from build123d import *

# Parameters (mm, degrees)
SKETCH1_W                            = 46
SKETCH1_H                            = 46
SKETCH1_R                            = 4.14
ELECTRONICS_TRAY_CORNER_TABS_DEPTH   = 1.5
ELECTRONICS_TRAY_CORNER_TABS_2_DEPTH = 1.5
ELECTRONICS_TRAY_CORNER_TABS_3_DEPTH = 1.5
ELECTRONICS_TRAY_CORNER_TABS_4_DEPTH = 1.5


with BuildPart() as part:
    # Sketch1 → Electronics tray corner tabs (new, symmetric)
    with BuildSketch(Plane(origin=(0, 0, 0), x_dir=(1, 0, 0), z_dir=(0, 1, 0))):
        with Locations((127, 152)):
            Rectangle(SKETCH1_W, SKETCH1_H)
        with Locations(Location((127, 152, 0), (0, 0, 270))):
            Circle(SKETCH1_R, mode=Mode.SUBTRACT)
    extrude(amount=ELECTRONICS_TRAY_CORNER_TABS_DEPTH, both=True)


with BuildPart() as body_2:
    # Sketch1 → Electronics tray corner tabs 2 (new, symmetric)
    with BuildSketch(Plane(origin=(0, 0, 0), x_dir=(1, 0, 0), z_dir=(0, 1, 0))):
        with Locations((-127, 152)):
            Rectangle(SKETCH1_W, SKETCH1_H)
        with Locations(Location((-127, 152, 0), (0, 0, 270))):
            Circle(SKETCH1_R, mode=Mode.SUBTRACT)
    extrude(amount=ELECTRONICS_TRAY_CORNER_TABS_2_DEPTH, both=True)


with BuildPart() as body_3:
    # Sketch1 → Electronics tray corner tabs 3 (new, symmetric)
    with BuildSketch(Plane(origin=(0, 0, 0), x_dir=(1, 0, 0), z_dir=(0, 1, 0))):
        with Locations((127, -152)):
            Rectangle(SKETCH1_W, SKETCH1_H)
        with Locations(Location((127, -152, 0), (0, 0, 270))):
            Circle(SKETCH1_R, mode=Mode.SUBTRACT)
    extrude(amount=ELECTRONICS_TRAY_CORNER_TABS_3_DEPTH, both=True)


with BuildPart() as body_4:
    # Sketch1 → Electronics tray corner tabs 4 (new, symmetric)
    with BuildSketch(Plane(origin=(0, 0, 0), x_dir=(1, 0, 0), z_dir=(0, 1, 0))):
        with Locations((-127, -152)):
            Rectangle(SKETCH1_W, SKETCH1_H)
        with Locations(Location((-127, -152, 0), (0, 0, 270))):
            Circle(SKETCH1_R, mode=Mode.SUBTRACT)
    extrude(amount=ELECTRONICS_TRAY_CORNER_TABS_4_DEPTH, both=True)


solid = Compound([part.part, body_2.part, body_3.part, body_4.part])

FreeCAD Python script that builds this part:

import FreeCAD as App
import Part
import Sketcher

V = App.Vector

doc = App.newDocument("Part")
params = doc.addObject("Spreadsheet::Sheet", "Params")
for row, (alias, value) in enumerate([
    ("sketch1_diameter", "8.28 mm"),
    ("sketch1_width", "46 mm"),
    ("pad1_length", "3 mm"),
    ("sketch2_diameter", "8.28 mm"),
    ("sketch2_width", "46 mm"),
    ("pad2_length", "3 mm"),
    ("sketch3_diameter", "8.28 mm"),
    ("sketch3_width", "46 mm"),
    ("pad3_length", "3 mm"),
    ("sketch4_diameter", "8.28 mm"),
    ("sketch4_width", "46 mm"),
    ("pad4_length", "3 mm"),
], start=1):
    params.set(f"A{row}", alias)
    params.set(f"B{row}", "=" + value)
    params.setAlias(f"B{row}", alias)

body = doc.addObject("PartDesign::Body", "Body")

sketch1 = body.newObject("Sketcher::SketchObject", "Sketch")
sketch1.AttachmentSupport = (doc.getObject("XZ_Plane"), [""])
sketch1.MapMode = "FlatFace"
sketch1.addGeometry([
    Part.LineSegment(V(104, -175, 0), V(104, -129, 0)),
    Part.LineSegment(V(104, -129, 0), V(150, -129, 0)),
    Part.LineSegment(V(150, -129, 0), V(150, -175, 0)),
    Part.LineSegment(V(150, -175, 0), V(104, -175, 0)),
    Part.Circle(V(127, -152, 0), V(0, 0, 1), 4.1),
], False)
sketch1.addConstraint([
    Sketcher.Constraint("Coincident", 0, 2, 1, 1),
    Sketcher.Constraint("Coincident", 1, 2, 2, 1),
    Sketcher.Constraint("Coincident", 2, 2, 3, 1),
    Sketcher.Constraint("Coincident", 3, 2, 0, 1),
    Sketcher.Constraint("Vertical", 0),
    Sketcher.Constraint("Horizontal", 1),
    Sketcher.Constraint("Vertical", 2),
    Sketcher.Constraint("Horizontal", 3),
    Sketcher.Constraint("Equal", 3, 0),
    Sketcher.Constraint("Diameter", 4, 8.28),
    Sketcher.Constraint("DistanceX", 1, 1, 1, 2, 46.0),
    Sketcher.Constraint("DistanceX", -1, 1, 4, 3, 127.0),
    Sketcher.Constraint("DistanceY", 4, 3, -1, 1, 152.0),
    Sketcher.Constraint("DistanceX", -1, 1, 0, 2, 104.0),
    Sketcher.Constraint("DistanceY", 0, 2, -1, 1, 129.0),
])
sketch1.setExpression("Constraints[9]", "Params.sketch1_diameter")
sketch1.setExpression("Constraints[10]", "Params.sketch1_width")
pad1 = body.newObject("PartDesign::Pad", "Pad")
pad1.Profile = sketch1
pad1.setExpression("Length", "Params.pad1_length")
pad1.Midplane = True
body2 = doc.addObject("PartDesign::Body", "Body001")

sketch2 = body2.newObject("Sketcher::SketchObject", "Sketch001")
sketch2.AttachmentSupport = (doc.getObject("XZ_Plane001"), [""])
sketch2.MapMode = "FlatFace"
sketch2.addGeometry([
    Part.LineSegment(V(-150, -175, 0), V(-150, -129, 0)),
    Part.LineSegment(V(-150, -129, 0), V(-104, -129, 0)),
    Part.LineSegment(V(-104, -129, 0), V(-104, -175, 0)),
    Part.LineSegment(V(-104, -175, 0), V(-150, -175, 0)),
    Part.Circle(V(-127, -152, 0), V(0, 0, 1), 4.1),
], False)
sketch2.addConstraint([
    Sketcher.Constraint("Coincident", 0, 2, 1, 1),
    Sketcher.Constraint("Coincident", 1, 2, 2, 1),
    Sketcher.Constraint("Coincident", 2, 2, 3, 1),
    Sketcher.Constraint("Coincident", 3, 2, 0, 1),
    Sketcher.Constraint("Vertical", 0),
    Sketcher.Constraint("Horizontal", 1),
    Sketcher.Constraint("Vertical", 2),
    Sketcher.Constraint("Horizontal", 3),
    Sketcher.Constraint("Equal", 3, 0),
    Sketcher.Constraint("Diameter", 4, 8.28),
    Sketcher.Constraint("DistanceX", 1, 1, 1, 2, 46.0),
    Sketcher.Constraint("DistanceX", 4, 3, -1, 1, 127.0),
    Sketcher.Constraint("DistanceY", 4, 3, -1, 1, 152.0),
    Sketcher.Constraint("DistanceX", 0, 2, -1, 1, 150.0),
    Sketcher.Constraint("DistanceY", 0, 2, -1, 1, 129.0),
])
sketch2.setExpression("Constraints[9]", "Params.sketch2_diameter")
sketch2.setExpression("Constraints[10]", "Params.sketch2_width")
pad2 = body2.newObject("PartDesign::Pad", "Pad001")
pad2.Profile = sketch2
pad2.setExpression("Length", "Params.pad2_length")
pad2.Midplane = True
body3 = doc.addObject("PartDesign::Body", "Body002")

sketch3 = body3.newObject("Sketcher::SketchObject", "Sketch002")
sketch3.AttachmentSupport = (doc.getObject("XZ_Plane002"), [""])
sketch3.MapMode = "FlatFace"
sketch3.addGeometry([
    Part.LineSegment(V(104, 129, 0), V(104, 175, 0)),
    Part.LineSegment(V(104, 175, 0), V(150, 175, 0)),
    Part.LineSegment(V(150, 175, 0), V(150, 129, 0)),
    Part.LineSegment(V(150, 129, 0), V(104, 129, 0)),
    Part.Circle(V(127, 152, 0), V(0, 0, 1), 4.1),
], False)
sketch3.addConstraint([
    Sketcher.Constraint("Coincident", 0, 2, 1, 1),
    Sketcher.Constraint("Coincident", 1, 2, 2, 1),
    Sketcher.Constraint("Coincident", 2, 2, 3, 1),
    Sketcher.Constraint("Coincident", 3, 2, 0, 1),
    Sketcher.Constraint("Vertical", 0),
    Sketcher.Constraint("Horizontal", 1),
    Sketcher.Constraint("Vertical", 2),
    Sketcher.Constraint("Horizontal", 3),
    Sketcher.Constraint("Equal", 3, 0),
    Sketcher.Constraint("Diameter", 4, 8.28),
    Sketcher.Constraint("DistanceX", 1, 1, 1, 2, 46.0),
    Sketcher.Constraint("DistanceX", -1, 1, 4, 3, 127.0),
    Sketcher.Constraint("DistanceY", -1, 1, 4, 3, 152.0),
    Sketcher.Constraint("DistanceX", -1, 1, 0, 2, 104.0),
    Sketcher.Constraint("DistanceY", -1, 1, 0, 2, 175.0),
])
sketch3.setExpression("Constraints[9]", "Params.sketch3_diameter")
sketch3.setExpression("Constraints[10]", "Params.sketch3_width")
pad3 = body3.newObject("PartDesign::Pad", "Pad002")
pad3.Profile = sketch3
pad3.setExpression("Length", "Params.pad3_length")
pad3.Midplane = True
body4 = doc.addObject("PartDesign::Body", "Body003")

sketch4 = body4.newObject("Sketcher::SketchObject", "Sketch003")
sketch4.AttachmentSupport = (doc.getObject("XZ_Plane003"), [""])
sketch4.MapMode = "FlatFace"
sketch4.addGeometry([
    Part.LineSegment(V(-150, 129, 0), V(-150, 175, 0)),
    Part.LineSegment(V(-150, 175, 0), V(-104, 175, 0)),
    Part.LineSegment(V(-104, 175, 0), V(-104, 129, 0)),
    Part.LineSegment(V(-104, 129, 0), V(-150, 129, 0)),
    Part.Circle(V(-127, 152, 0), V(0, 0, 1), 4.1),
], False)
sketch4.addConstraint([
    Sketcher.Constraint("Coincident", 0, 2, 1, 1),
    Sketcher.Constraint("Coincident", 1, 2, 2, 1),
    Sketcher.Constraint("Coincident", 2, 2, 3, 1),
    Sketcher.Constraint("Coincident", 3, 2, 0, 1),
    Sketcher.Constraint("Vertical", 0),
    Sketcher.Constraint("Horizontal", 1),
    Sketcher.Constraint("Vertical", 2),
    Sketcher.Constraint("Horizontal", 3),
    Sketcher.Constraint("Equal", 3, 0),
    Sketcher.Constraint("Diameter", 4, 8.28),
    Sketcher.Constraint("DistanceX", 1, 1, 1, 2, 46.0),
    Sketcher.Constraint("DistanceX", 4, 3, -1, 1, 127.0),
    Sketcher.Constraint("DistanceY", -1, 1, 4, 3, 152.0),
    Sketcher.Constraint("DistanceX", 0, 2, -1, 1, 150.0),
    Sketcher.Constraint("DistanceY", -1, 1, 0, 2, 175.0),
])
sketch4.setExpression("Constraints[9]", "Params.sketch4_diameter")
sketch4.setExpression("Constraints[10]", "Params.sketch4_width")
pad4 = body4.newObject("PartDesign::Pad", "Pad003")
pad4.Profile = sketch4
pad4.setExpression("Length", "Params.pad4_length")
pad4.Midplane = True

doc.recompute()
